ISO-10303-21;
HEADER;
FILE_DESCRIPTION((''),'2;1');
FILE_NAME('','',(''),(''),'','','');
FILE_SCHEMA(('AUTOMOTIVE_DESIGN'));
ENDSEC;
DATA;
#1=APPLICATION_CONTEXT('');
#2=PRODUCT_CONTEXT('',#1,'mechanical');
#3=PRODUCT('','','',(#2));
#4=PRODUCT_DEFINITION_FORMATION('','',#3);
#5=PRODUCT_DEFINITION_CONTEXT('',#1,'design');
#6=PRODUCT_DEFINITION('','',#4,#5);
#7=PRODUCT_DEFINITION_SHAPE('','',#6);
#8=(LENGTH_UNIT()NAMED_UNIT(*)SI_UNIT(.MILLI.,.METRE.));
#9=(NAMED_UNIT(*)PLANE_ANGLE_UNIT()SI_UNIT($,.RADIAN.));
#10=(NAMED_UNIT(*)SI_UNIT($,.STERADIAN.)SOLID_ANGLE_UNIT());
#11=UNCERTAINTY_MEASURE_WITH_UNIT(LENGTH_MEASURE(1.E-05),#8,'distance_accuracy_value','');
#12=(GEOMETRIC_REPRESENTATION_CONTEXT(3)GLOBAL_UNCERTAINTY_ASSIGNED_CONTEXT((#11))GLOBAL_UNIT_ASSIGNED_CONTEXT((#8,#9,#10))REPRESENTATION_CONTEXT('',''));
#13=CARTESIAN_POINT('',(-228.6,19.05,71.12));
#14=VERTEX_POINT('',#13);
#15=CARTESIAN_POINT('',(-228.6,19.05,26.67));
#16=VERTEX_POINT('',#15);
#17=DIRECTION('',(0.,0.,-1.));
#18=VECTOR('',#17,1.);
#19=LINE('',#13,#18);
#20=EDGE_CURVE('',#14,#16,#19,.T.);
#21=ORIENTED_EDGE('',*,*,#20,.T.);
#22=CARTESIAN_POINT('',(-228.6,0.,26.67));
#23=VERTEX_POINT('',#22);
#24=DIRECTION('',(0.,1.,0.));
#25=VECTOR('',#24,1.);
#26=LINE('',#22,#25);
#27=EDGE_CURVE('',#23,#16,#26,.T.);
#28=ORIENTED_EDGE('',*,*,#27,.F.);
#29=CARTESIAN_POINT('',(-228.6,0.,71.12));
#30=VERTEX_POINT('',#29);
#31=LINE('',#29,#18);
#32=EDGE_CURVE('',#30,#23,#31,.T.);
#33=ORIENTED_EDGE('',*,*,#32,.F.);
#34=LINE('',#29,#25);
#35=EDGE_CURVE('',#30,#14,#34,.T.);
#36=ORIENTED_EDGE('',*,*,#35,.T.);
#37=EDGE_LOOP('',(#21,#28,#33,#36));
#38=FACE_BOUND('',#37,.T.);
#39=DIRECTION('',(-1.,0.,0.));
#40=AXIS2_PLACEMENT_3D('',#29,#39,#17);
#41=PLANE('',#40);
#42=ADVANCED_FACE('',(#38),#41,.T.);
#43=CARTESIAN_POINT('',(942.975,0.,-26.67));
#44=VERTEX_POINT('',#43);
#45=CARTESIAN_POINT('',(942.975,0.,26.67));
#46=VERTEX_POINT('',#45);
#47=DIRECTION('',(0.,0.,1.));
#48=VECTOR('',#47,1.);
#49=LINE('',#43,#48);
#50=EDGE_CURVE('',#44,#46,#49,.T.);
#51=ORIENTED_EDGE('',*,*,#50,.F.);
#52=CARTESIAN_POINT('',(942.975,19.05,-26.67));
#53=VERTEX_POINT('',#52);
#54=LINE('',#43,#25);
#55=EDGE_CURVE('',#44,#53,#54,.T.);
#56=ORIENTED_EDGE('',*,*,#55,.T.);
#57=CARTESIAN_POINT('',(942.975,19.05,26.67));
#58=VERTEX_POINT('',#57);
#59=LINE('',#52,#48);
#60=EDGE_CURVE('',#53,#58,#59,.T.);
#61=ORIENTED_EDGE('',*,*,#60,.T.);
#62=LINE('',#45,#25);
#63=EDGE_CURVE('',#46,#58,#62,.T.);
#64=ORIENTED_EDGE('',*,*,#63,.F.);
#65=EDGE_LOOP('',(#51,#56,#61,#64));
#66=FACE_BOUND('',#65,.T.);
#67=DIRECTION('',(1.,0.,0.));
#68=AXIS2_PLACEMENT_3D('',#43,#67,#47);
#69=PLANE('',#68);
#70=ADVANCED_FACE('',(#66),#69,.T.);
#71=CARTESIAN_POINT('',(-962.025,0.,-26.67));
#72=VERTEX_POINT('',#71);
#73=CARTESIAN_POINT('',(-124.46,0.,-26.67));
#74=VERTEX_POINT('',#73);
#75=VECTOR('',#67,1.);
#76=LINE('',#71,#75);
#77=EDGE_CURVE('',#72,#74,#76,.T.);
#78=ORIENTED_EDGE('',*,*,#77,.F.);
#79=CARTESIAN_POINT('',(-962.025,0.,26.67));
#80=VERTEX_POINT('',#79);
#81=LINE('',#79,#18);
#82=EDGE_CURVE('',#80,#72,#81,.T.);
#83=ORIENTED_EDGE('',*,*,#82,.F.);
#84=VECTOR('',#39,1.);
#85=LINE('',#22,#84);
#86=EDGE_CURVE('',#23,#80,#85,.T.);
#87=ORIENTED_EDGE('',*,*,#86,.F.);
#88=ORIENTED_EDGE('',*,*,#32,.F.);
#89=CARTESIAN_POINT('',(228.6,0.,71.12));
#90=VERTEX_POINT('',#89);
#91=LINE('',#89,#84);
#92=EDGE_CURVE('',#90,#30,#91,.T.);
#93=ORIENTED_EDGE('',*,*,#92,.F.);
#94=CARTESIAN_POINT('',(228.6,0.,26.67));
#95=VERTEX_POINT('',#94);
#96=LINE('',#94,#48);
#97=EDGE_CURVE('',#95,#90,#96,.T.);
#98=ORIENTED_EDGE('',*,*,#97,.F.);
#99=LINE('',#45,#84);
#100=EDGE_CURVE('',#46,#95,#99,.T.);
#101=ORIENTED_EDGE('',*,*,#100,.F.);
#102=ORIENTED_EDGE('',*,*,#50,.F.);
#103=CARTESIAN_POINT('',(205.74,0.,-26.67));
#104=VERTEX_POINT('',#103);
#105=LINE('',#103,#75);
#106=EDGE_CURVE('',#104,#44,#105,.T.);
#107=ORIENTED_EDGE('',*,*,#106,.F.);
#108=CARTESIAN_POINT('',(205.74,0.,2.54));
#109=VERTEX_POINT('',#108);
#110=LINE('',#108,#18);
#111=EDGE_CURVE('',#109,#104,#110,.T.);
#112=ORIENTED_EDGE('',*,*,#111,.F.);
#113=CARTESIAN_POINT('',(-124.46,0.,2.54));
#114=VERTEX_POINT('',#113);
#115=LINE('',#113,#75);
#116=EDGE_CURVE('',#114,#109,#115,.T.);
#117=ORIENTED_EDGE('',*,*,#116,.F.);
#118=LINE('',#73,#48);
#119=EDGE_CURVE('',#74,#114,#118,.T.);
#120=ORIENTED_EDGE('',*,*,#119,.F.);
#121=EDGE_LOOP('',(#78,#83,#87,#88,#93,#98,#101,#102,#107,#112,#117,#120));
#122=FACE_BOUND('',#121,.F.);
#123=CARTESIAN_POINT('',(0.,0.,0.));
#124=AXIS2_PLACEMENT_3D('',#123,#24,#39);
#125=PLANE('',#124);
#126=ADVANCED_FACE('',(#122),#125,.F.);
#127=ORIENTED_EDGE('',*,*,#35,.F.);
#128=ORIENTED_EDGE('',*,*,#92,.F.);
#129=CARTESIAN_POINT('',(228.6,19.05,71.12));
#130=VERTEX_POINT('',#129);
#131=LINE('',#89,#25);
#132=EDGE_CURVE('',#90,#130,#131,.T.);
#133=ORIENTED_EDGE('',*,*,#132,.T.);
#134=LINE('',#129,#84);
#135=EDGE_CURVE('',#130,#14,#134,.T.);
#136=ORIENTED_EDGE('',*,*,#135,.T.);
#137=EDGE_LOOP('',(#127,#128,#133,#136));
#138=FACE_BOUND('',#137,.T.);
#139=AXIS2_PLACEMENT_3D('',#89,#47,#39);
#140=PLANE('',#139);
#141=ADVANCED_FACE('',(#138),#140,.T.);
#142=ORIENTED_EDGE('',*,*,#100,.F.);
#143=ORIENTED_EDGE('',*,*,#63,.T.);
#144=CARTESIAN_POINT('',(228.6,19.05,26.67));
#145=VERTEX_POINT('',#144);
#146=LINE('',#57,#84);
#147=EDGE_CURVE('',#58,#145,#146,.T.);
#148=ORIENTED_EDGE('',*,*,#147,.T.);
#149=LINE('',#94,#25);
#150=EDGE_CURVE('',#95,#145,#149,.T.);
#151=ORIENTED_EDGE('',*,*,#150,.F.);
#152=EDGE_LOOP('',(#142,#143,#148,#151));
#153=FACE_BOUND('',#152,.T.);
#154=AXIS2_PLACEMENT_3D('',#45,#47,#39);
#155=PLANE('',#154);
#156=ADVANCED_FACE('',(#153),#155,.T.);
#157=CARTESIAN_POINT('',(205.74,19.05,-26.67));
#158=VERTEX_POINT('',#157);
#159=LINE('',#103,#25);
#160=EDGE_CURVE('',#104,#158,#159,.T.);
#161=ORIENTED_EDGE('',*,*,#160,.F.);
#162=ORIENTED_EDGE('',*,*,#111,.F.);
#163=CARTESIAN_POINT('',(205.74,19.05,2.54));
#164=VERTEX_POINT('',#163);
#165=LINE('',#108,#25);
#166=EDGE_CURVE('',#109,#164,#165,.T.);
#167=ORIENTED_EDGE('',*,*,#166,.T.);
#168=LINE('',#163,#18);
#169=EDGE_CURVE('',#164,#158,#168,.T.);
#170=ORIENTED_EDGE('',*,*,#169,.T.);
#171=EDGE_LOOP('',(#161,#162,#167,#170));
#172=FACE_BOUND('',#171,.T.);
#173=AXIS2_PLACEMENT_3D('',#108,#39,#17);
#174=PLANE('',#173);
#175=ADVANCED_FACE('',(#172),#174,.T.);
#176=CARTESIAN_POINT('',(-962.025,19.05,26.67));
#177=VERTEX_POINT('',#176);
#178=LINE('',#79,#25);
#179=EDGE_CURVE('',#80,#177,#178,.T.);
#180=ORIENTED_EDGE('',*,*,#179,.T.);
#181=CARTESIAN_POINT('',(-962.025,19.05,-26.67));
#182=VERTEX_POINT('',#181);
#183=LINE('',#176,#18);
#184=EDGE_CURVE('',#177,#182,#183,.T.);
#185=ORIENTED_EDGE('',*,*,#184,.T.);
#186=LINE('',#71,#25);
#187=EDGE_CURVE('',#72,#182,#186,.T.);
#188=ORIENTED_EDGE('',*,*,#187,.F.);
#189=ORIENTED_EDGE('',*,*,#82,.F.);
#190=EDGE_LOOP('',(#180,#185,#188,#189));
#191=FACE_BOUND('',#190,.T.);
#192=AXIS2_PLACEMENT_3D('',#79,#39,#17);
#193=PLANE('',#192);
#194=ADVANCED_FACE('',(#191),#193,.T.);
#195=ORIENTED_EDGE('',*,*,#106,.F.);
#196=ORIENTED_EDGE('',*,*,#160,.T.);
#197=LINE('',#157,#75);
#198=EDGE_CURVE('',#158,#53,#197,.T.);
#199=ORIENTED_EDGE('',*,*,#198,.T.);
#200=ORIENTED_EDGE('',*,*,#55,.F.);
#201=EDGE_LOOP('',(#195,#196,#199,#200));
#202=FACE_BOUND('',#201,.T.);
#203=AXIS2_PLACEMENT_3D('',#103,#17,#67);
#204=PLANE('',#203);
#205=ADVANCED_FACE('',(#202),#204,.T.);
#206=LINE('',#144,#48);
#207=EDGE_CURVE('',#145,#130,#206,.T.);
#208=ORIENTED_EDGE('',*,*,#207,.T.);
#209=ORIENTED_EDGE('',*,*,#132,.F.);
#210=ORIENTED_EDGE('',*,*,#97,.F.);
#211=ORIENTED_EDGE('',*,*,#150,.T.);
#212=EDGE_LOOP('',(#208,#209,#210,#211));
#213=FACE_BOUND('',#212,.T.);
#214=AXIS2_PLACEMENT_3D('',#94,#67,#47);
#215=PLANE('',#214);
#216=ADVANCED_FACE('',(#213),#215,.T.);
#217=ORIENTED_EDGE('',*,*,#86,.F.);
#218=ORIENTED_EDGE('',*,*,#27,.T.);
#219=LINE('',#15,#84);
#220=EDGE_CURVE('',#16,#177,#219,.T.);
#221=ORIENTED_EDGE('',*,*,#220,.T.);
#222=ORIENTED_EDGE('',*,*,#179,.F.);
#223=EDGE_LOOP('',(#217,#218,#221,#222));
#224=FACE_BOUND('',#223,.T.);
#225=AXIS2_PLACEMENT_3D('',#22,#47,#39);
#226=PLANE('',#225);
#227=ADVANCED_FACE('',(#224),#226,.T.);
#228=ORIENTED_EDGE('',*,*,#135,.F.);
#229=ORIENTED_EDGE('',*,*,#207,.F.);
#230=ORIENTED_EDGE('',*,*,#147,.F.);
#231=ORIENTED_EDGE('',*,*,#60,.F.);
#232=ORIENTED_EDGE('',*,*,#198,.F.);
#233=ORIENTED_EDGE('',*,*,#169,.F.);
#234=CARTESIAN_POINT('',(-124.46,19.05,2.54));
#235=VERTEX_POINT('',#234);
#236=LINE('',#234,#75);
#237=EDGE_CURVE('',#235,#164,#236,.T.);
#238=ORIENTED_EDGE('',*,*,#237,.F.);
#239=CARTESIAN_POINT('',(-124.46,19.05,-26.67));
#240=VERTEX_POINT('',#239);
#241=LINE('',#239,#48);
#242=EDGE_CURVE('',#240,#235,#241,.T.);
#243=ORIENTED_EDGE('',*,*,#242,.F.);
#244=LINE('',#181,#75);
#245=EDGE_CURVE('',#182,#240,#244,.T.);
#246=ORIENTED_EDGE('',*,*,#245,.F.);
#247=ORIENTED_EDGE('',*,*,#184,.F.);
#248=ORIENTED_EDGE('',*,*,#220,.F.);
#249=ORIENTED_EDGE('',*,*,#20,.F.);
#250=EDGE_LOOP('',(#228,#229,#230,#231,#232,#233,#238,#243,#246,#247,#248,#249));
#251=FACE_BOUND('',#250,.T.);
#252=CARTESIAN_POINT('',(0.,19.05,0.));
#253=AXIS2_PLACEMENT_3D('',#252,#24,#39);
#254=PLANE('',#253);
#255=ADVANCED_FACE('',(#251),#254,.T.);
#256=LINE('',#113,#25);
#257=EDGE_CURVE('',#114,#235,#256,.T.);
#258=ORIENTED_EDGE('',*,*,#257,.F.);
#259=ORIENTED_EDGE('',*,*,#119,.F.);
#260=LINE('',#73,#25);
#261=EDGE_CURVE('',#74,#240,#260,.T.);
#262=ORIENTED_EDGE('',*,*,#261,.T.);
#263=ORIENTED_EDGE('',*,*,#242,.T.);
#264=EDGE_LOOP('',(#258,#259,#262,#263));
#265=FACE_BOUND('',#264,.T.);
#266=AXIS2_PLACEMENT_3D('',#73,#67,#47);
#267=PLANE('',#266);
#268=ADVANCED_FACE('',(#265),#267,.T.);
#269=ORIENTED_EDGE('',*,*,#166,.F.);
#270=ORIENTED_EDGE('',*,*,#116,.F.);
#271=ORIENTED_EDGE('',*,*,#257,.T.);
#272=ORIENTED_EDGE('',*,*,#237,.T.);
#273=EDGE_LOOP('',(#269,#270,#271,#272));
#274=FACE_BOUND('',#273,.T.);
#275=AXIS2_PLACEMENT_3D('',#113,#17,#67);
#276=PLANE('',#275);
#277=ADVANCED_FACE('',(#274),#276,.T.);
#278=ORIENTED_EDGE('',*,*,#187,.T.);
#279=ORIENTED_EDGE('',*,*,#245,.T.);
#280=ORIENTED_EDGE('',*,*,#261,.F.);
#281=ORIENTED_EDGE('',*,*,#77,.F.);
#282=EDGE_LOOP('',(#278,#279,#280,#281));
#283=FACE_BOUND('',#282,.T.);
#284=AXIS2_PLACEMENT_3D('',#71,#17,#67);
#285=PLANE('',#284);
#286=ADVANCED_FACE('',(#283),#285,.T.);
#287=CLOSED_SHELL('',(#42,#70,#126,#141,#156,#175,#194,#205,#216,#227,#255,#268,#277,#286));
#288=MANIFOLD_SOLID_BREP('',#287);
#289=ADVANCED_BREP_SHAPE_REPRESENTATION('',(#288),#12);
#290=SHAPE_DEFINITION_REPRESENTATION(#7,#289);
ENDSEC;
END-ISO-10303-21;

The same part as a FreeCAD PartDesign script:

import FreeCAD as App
import Part
import Sketcher
from FreeCAD import Vector
Q = App.Units.Quantity

doc = App.newDocument("Part")
body = doc.addObject("PartDesign::Body", "Body")

# Sketch on XZ plane
sketch1 = body.newObject("Sketcher::SketchObject", "Sketch")
sketch1.AttachmentSupport = (doc.getObject("XZ_Plane"), [""])
sketch1.MapMode = "FlatFace"
sketch1.addGeometry([
    Part.LineSegment(Vector(943, 27, 0), Vector(943, -27, 0)),  # 0
    Part.LineSegment(Vector(943, -27, 0), Vector(206, -27, 0)),  # 1
    Part.LineSegment(Vector(206, -27, 0), Vector(206, 3, 0)),  # 2
    Part.LineSegment(Vector(206, 3, 0), Vector(-124, 3, 0)),  # 3
    Part.LineSegment(Vector(-124, 3, 0), Vector(-124, -27, 0)),  # 4
    Part.LineSegment(Vector(-124, -27, 0), Vector(-962, -27, 0)),  # 5
    Part.LineSegment(Vector(-962, -27, 0), Vector(-962, 27, 0)),  # 6
    Part.LineSegment(Vector(-962, 27, 0), Vector(-229, 27, 0)),  # 7
    Part.LineSegment(Vector(-229, 27, 0), Vector(-229, 71, 0)),  # 8
    Part.LineSegment(Vector(-229, 71, 0), Vector(229, 71, 0)),  # 9
    Part.LineSegment(Vector(229, 71, 0), Vector(229, 27, 0)),  # 10
    Part.LineSegment(Vector(229, 27, 0), Vector(943, 27, 0)),  # 11
], False)
sketch1.addConstraint([
    Sketcher.Constraint("Coincident", 0, 2, 1, 1),
    Sketcher.Constraint("Coincident", 1, 2, 2, 1),
    Sketcher.Constraint("Coincident", 2, 2, 3, 1),
    Sketcher.Constraint("Coincident", 3, 2, 4, 1),
    Sketcher.Constraint("Coincident", 4, 2, 5, 1),
    Sketcher.Constraint("Coincident", 5, 2, 6, 1),
    Sketcher.Constraint("Coincident", 6, 2, 7, 1),
    Sketcher.Constraint("Coincident", 7, 2, 8, 1),
    Sketcher.Constraint("Coincident", 8, 2, 9, 1),
    Sketcher.Constraint("Coincident", 9, 2, 10, 1),
    Sketcher.Constraint("Coincident", 10, 2, 11, 1),
    Sketcher.Constraint("Coincident", 11, 2, 0, 1),
    Sketcher.Constraint("Vertical", 0),
    Sketcher.Constraint("Horizontal", 1),
    Sketcher.Constraint("Vertical", 2),
    Sketcher.Constraint("Horizontal", 3),
    Sketcher.Constraint("Vertical", 4),
    Sketcher.Constraint("Horizontal", 5),
    Sketcher.Constraint("Vertical", 6),
    Sketcher.Constraint("Horizontal", 7),
    Sketcher.Constraint("Vertical", 8),
    Sketcher.Constraint("Horizontal", 9),
    Sketcher.Constraint("Vertical", 10),
    Sketcher.Constraint("Horizontal", 11),
    Sketcher.Constraint("Symmetric", 7, 2, 10, 2, -2),
    Sketcher.Constraint("Horizontal", 1, 2, 4, 2),
    Sketcher.Constraint("DistanceX", 9, 1, 9, 2, Q("18 in")),
    Sketcher.Constraint("DistanceY", 0, 2, 0, 1, Q("2.1 in")),
    Sketcher.Constraint("DistanceX", 5, 2, 0, 2, Q("75 in")),
    Sketcher.Constraint("DistanceY", 2, 1, 2, 2, Q("1.15 in")),
    Sketcher.Constraint("DistanceX", 7, 2, 3, 2, Q("4.1 in")),
    Sketcher.Constraint("DistanceY", 3, 2, 8, 2, Q("2.7 in")),
    Sketcher.Constraint("DistanceX", 2, 2, 9, 2, Q("0.9 in")),
    Sketcher.Constraint("DistanceX", 11, 1, 11, 2, Q("28.125 in")),
    Sketcher.Constraint("DistanceY", -1, 1, 2, 2, Q("0.1 in")),
])
pad1 = body.newObject("PartDesign::Pad", "Pad")
pad1.Profile = sketch1
pad1.Length = Q("0.75 in")
pad1.Reversed = True

doc.recompute()
